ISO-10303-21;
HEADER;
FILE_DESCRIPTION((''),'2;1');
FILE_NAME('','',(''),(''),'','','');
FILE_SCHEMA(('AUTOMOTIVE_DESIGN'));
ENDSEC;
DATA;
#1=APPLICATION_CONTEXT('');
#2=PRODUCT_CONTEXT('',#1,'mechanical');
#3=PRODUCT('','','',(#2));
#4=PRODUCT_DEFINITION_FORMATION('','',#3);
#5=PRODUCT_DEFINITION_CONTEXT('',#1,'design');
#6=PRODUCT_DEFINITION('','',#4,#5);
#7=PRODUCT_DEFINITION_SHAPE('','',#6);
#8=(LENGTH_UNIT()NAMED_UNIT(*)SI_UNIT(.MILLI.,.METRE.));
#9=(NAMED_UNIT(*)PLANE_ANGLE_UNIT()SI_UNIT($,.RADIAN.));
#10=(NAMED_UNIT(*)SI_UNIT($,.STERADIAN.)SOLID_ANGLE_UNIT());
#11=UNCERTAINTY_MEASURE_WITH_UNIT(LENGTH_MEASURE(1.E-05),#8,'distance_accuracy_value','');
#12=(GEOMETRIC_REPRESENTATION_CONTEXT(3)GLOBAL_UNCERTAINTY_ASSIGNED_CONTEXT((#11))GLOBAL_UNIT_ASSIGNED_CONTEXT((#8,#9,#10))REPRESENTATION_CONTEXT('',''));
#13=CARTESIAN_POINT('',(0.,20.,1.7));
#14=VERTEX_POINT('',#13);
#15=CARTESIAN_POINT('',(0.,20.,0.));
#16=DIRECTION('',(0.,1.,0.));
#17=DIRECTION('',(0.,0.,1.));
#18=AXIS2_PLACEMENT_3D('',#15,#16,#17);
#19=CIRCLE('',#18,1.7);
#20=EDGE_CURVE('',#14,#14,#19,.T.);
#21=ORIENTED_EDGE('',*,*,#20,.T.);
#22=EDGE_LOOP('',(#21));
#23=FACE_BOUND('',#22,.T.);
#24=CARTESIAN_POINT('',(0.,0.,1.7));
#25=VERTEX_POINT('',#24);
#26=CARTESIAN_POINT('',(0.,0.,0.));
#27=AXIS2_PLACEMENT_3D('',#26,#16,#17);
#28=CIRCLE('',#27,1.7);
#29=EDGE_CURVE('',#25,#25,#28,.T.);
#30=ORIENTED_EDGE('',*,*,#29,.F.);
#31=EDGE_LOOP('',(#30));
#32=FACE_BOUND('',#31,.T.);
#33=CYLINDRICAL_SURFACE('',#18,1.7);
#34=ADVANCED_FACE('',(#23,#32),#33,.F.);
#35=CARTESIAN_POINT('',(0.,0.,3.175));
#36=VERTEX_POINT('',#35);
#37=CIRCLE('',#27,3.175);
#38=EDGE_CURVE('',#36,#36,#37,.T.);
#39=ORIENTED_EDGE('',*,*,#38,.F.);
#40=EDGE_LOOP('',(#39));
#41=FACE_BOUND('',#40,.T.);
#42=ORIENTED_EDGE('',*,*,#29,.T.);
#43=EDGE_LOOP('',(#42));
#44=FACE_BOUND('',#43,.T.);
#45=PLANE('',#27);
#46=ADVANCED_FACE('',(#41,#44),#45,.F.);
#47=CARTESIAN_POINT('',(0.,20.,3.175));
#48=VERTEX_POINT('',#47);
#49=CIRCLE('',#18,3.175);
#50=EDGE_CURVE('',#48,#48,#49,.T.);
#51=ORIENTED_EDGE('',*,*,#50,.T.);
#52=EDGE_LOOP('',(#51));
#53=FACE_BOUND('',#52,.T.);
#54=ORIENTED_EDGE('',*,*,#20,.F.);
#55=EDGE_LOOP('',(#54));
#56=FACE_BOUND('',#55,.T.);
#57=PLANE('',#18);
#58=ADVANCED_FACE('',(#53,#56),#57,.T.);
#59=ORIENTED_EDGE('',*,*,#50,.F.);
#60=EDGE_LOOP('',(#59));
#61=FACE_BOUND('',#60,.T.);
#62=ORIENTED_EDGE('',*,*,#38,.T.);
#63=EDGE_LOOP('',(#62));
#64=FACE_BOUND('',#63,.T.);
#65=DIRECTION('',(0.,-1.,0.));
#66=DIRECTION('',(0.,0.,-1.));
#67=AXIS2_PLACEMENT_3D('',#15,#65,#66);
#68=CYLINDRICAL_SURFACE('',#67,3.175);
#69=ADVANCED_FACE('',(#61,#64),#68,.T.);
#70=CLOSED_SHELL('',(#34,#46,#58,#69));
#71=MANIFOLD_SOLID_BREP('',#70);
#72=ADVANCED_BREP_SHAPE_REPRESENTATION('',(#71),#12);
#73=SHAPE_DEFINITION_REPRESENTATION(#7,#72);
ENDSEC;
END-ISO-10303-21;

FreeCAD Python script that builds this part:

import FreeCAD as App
import Part
import Sketcher

V = App.Vector
Q = App.Units.Quantity

doc = App.newDocument("Part")
body = doc.addObject("PartDesign::Body", "Body")

# Sketch on XZ plane
sketch1 = body.newObject("Sketcher::SketchObject", "Sketch")
sketch1.AttachmentSupport = (doc.getObject("XZ_Plane"), [""])
sketch1.MapMode = "FlatFace"
sketch1.addGeometry(Part.Circle(V(0, 0, 0), V(0, 0, 1), 3.2), False)
sketch1.addConstraint([
    Sketcher.Constraint("Coincident", 0, 3, -1, 1),
    Sketcher.Constraint("Diameter", 0, Q("6.35 mm")),
])
pad1 = body.newObject("PartDesign::Pad", "Pad")
pad1.Profile = sketch1
pad1.Length = 20
pad1.Reversed = True

# Sketch on XZ plane
sketch2 = body.newObject("Sketcher::SketchObject", "Sketch001")
sketch2.AttachmentSupport = (doc.getObject("XZ_Plane"), [""])
sketch2.MapMode = "FlatFace"
sketch2.AttachmentOffset = App.Placement(V(0, 0, -20), App.Rotation())
sketch2.addGeometry(Part.Circle(V(0, 0, 0), V(0, 0, 1), 1.7), False)
sketch2.addConstraint([
    Sketcher.Constraint("Coincident", 0, 3, -1, 1),
    Sketcher.Constraint("Diameter", 0, Q("3.4 mm")),
])
doc.recompute()
hole = body.newObject("PartDesign::Hole", "Hole")
hole.Profile = sketch2
hole.ThreadType = "None"
hole.Diameter = 3.4
hole.DepthType = "ThroughAll"
hole.Reversed = True

doc.recompute()
